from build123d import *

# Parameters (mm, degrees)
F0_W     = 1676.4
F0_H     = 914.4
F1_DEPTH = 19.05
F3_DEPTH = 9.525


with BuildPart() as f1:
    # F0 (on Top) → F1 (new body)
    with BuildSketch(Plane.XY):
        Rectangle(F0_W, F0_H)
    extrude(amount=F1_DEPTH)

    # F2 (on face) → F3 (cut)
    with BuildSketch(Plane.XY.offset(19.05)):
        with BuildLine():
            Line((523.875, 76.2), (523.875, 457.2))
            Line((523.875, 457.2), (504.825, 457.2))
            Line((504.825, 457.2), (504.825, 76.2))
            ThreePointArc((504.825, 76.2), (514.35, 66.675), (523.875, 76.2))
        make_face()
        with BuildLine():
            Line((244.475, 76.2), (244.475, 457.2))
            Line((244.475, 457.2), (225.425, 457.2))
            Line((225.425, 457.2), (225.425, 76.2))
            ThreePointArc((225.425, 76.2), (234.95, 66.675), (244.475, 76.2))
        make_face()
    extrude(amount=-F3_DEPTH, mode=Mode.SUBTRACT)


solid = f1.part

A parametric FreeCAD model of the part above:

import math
import FreeCAD as App
import Part
import Sketcher

V = App.Vector
Q = App.Units.Quantity


def add_polygon(sketch, points):
    """Adds a closed chain of lines whose ends are joined by coincident constraints."""
    first, n = sketch.GeometryCount, len(points)
    for a, b in zip(points, points[1:] + points[:1]):
        sketch.addGeometry(Part.LineSegment(App.Vector(*a, 0), App.Vector(*b, 0)), False)
    for i in range(n):
        sketch.addConstraint(Sketcher.Constraint("Coincident", first + i, 2, first + (i + 1) % n, 1))

doc = App.newDocument("Part")
params = doc.addObject("Spreadsheet::Sheet", "Params")
for row, (alias, value) in enumerate([
    ("sketch1_width", "66 in"),
    ("sketch1_height", "36 in"),
    ("pad1_length", "0.75 in"),
    ("sketch2_height", "15 in"),
    ("sketch2_radius", "0.375 in"),
    ("pocket1_length", "0.375 in"),
], start=1):
    params.set(f"A{row}", alias)
    params.set(f"B{row}", "=" + value)
    params.setAlias(f"B{row}", alias)

body = doc.addObject("PartDesign::Body", "Body")

# Sketch on XY plane
sketch1 = doc.addObject("Sketcher::SketchObject", "Sketch")
body.addObject(sketch1)
sketch1.AttachmentSupport = (doc.XY_Plane, [""])
sketch1.MapMode = "FlatFace"
add_polygon(sketch1, [(-838, 457), (-838, -457), (838, -457), (838, 457)])  # lines 0-3
sketch1.addConstraint(Sketcher.Constraint("Vertical", 0))
sketch1.addConstraint(Sketcher.Constraint("Horizontal", 1))
sketch1.addConstraint(Sketcher.Constraint("Vertical", 2))
sketch1.addConstraint(Sketcher.Constraint("Horizontal", 3))
sketch1.addConstraint(Sketcher.Constraint("Symmetric", 0, 2, 2, 2, -1, 1))
sketch1.addConstraint(Sketcher.Constraint("DistanceX", 1, 1, 1, 2, Q("66 in")))
sketch1.addConstraint(Sketcher.Constraint("DistanceY", 0, 2, 0, 1, Q("36 in")))
sketch1.setExpression("Constraints[9]", "Params.sketch1_width")
sketch1.setExpression("Constraints[10]", "Params.sketch1_height")
pad1 = doc.addObject("PartDesign::Pad", "Pad")
body.addObject(pad1)
pad1.Profile = sketch1
pad1.setExpression("Length", "Params.pad1_length")

# Sketch on XY plane
sketch2 = doc.addObject("Sketcher::SketchObject", "Sketch001")
body.addObject(sketch2)
sketch2.AttachmentSupport = (doc.XY_Plane, [""])
sketch2.MapMode = "FlatFace"
sketch2.AttachmentOffset = App.Placement(V(0, 0, 0.75 * 25.4), App.Rotation())
sketch2.addGeometry(Part.LineSegment(V(524, 76, 0), V(524, 457, 0)), False)
sketch2.addGeometry(Part.LineSegment(V(524, 457, 0), V(505, 457, 0)), False)
sketch2.addGeometry(Part.LineSegment(V(505, 457, 0), V(505, 76, 0)), False)
sketch2.addGeometry(Part.ArcOfCircle(Part.Circle(V(514, 76, 0), V(0, 0, 1), 10), math.radians(180), math.radians(360)), False)
sketch2.addGeometry(Part.LineSegment(V(244, 76, 0), V(244, 457, 0)), False)
sketch2.addGeometry(Part.LineSegment(V(244, 457, 0), V(225, 457, 0)), False)
sketch2.addGeometry(Part.LineSegment(V(225, 457, 0), V(225, 76, 0)), False)
sketch2.addGeometry(Part.ArcOfCircle(Part.Circle(V(235, 76, 0), V(0, 0, 1), 10), math.radians(180), math.radians(360)), False)
sketch2.addConstraint(Sketcher.Constraint("Coincident", 0, 2, 1, 1))
sketch2.addConstraint(Sketcher.Constraint("Coincident", 1, 2, 2, 1))
sketch2.addConstraint(Sketcher.Constraint("Tangent", 2, 2, 3, 1))
sketch2.addConstraint(Sketcher.Constraint("Tangent", 3, 2, 0, 1))
sketch2.addConstraint(Sketcher.Constraint("Coincident", 4, 2, 5, 1))
sketch2.addConstraint(Sketcher.Constraint("Coincident", 5, 2, 6, 1))
sketch2.addConstraint(Sketcher.Constraint("Tangent", 6, 2, 7, 1))
sketch2.addConstraint(Sketcher.Constraint("Tangent", 7, 2, 4, 1))
sketch2.addConstraint(Sketcher.Constraint("Vertical", 0))
sketch2.addConstraint(Sketcher.Constraint("Horizontal", 1))
sketch2.addConstraint(Sketcher.Constraint("Vertical", 2))
sketch2.addConstraint(Sketcher.Constraint("Vertical", 4))
sketch2.addConstraint(Sketcher.Constraint("Horizontal", 5))
sketch2.addConstraint(Sketcher.Constraint("Vertical", 6))
sketch2.addConstraint(Sketcher.Constraint("Equal", 3, 7))
sketch2.addConstraint(Sketcher.Constraint("Horizontal", 3, 3, 7, 3))
sketch2.addConstraint(Sketcher.Constraint("Horizontal", 1, 2, 4, 2))
sketch2.addConstraint(Sketcher.Constraint("DistanceY", 0, 1, 0, 2, Q("15 in")))
sketch2.addConstraint(Sketcher.Constraint("DistanceY", -1, 1, 3, 3, Q("3 in")))
sketch2.addConstraint(Sketcher.Constraint("Radius", 3, Q("0.375 in")))
sketch2.addConstraint(Sketcher.Constraint("DistanceX", 7, 3, 3, 3, Q("11 in")))
sketch2.addConstraint(Sketcher.Constraint("DistanceX", -1, 1, 3, 3, Q("20.25 in")))
sketch2.setExpression("Constraints[17]", "Params.sketch2_height")
sketch2.setExpression("Constraints[19]", "Params.sketch2_radius")
pocket1 = doc.addObject("PartDesign::Pocket", "Pocket")
body.addObject(pocket1)
pocket1.Profile = sketch2
pocket1.setExpression("Length", "Params.pocket1_length")

doc.recompute()
